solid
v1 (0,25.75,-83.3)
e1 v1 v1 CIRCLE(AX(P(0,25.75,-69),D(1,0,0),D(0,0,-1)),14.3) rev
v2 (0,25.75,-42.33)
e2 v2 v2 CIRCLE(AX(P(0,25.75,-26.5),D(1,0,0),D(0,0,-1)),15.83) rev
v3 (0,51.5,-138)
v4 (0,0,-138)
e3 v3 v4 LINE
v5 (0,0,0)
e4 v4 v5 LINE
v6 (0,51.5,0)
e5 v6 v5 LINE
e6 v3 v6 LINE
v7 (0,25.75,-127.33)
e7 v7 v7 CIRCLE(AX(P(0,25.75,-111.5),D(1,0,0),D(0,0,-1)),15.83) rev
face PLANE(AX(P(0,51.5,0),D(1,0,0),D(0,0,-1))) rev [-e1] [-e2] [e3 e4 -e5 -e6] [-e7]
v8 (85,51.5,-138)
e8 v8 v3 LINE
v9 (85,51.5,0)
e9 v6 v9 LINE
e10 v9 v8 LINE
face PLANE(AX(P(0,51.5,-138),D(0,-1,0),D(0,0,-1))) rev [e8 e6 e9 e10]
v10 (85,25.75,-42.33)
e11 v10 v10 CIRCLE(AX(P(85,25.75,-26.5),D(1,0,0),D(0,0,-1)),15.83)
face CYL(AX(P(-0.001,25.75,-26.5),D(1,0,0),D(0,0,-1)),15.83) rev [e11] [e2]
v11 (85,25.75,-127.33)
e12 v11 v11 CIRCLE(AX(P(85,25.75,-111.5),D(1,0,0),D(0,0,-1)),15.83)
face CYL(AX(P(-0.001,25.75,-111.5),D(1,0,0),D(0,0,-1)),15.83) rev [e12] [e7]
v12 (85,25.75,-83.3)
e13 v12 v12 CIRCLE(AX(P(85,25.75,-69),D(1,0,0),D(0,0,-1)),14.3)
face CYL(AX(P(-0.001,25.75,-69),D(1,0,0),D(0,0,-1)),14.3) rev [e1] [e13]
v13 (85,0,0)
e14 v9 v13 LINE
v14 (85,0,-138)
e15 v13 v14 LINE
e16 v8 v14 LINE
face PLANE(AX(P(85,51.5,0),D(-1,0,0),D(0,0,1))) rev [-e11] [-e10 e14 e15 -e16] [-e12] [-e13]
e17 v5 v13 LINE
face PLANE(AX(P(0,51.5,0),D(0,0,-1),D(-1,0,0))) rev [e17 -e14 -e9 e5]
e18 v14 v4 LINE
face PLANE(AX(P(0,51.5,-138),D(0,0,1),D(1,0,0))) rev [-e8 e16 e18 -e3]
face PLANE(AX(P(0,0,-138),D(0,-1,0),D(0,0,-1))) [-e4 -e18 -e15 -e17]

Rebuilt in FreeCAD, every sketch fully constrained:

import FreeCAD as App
import Part
import Sketcher
from FreeCAD import Vector


def add_polygon(sketch, points):
    """Adds a closed chain of lines whose ends are joined by coincident constraints."""
    first, n = sketch.GeometryCount, len(points)
    for a, b in zip(points, points[1:] + points[:1]):
        sketch.addGeometry(Part.LineSegment(App.Vector(*a, 0), App.Vector(*b, 0)), False)
    for i in range(n):
        sketch.addConstraint(Sketcher.Constraint("Coincident", first + i, 2, first + (i + 1) % n, 1))

doc = App.newDocument("Part")
body = doc.addObject("PartDesign::Body", "Body")

# Sketch on XZ plane
sketch1 = body.newObject("Sketcher::SketchObject", "Sketch")
sketch1.AttachmentSupport = (doc.getObject("XZ_Plane"), [""])
sketch1.MapMode = "FlatFace"
add_polygon(sketch1, [(0, -138), (0, 0), (85, 0), (85, -138)])  # lines 0-3
sketch1.addConstraint(Sketcher.Constraint("Vertical", 0))
sketch1.addConstraint(Sketcher.Constraint("Horizontal", 1))
sketch1.addConstraint(Sketcher.Constraint("Vertical", 2))
sketch1.addConstraint(Sketcher.Constraint("Horizontal", 3))
sketch1.addConstraint(Sketcher.Constraint("Coincident", 0, 2, -1, 1))
sketch1.addConstraint(Sketcher.Constraint("DistanceX", 1, 1, 1, 2, 85.0))
sketch1.addConstraint(Sketcher.Constraint("DistanceY", 0, 1, 0, 2, 138.0))
pad1 = body.newObject("PartDesign::Pad", "Pad")
pad1.Profile = sketch1
pad1.Length = 51.5
pad1.Reversed = True

# Sketch on YZ plane
sketch2 = body.newObject("Sketcher::SketchObject", "Sketch001")
sketch2.AttachmentSupport = (doc.getObject("YZ_Plane"), [""])
sketch2.MapMode = "FlatFace"
sketch2.AttachmentOffset = App.Placement(Vector(0, 0, 85), App.Rotation())
sketch2.addGeometry(Part.Circle(Vector(26, -69, 0), Vector(0, 0, 1), 14), False)
sketch2.addConstraint(Sketcher.Constraint("Diameter", 0, 28.6))
sketch2.addConstraint(Sketcher.Constraint("DistanceY", 0, 3, -1, 1, 69.0))
sketch2.addConstraint(Sketcher.Constraint("DistanceX", -1, 1, 0, 3, 25.75))
pocket1 = body.newObject("PartDesign::Pocket", "Pocket")
pocket1.Profile = sketch2
pocket1.Type = "UpToFirst"

# Sketch on YZ plane
sketch3 = body.newObject("Sketcher::SketchObject", "Sketch002")
sketch3.AttachmentSupport = (doc.getObject("YZ_Plane"), [""])
sketch3.MapMode = "FlatFace"
sketch3.AttachmentOffset = App.Placement(Vector(0, 0, 85), App.Rotation())
sketch3.addGeometry(Part.Circle(Vector(26, -26, 0), Vector(0, 0, 1), 16), False)
sketch3.addConstraint(Sketcher.Constraint("Diameter", 0, 31.66))
sketch3.addConstraint(Sketcher.Constraint("DistanceY", 0, 3, -1, 1, 26.5))
sketch3.addConstraint(Sketcher.Constraint("DistanceX", -1, 1, 0, 3, 25.75))
pocket2 = body.newObject("PartDesign::Pocket", "Pocket001")
pocket2.Profile = sketch3
pocket2.Type = "UpToFirst"

# Sketch on YZ plane
sketch4 = body.newObject("Sketcher::SketchObject", "Sketch003")
sketch4.AttachmentSupport = (doc.getObject("YZ_Plane"), [""])
sketch4.MapMode = "FlatFace"
sketch4.AttachmentOffset = App.Placement(Vector(0, 0, 85), App.Rotation())
sketch4.addGeometry(Part.Circle(Vector(26, -112, 0), Vector(0, 0, 1), 16), False)
sketch4.addConstraint(Sketcher.Constraint("Diameter", 0, 31.66))
sketch4.addConstraint(Sketcher.Constraint("DistanceY", 0, 3, -1, 1, 111.5))
sketch4.addConstraint(Sketcher.Constraint("DistanceX", -1, 1, 0, 3, 25.75))
pocket3 = body.newObject("PartDesign::Pocket", "Pocket002")
pocket3.Profile = sketch4
pocket3.Type = "UpToFirst"

doc.recompute()
